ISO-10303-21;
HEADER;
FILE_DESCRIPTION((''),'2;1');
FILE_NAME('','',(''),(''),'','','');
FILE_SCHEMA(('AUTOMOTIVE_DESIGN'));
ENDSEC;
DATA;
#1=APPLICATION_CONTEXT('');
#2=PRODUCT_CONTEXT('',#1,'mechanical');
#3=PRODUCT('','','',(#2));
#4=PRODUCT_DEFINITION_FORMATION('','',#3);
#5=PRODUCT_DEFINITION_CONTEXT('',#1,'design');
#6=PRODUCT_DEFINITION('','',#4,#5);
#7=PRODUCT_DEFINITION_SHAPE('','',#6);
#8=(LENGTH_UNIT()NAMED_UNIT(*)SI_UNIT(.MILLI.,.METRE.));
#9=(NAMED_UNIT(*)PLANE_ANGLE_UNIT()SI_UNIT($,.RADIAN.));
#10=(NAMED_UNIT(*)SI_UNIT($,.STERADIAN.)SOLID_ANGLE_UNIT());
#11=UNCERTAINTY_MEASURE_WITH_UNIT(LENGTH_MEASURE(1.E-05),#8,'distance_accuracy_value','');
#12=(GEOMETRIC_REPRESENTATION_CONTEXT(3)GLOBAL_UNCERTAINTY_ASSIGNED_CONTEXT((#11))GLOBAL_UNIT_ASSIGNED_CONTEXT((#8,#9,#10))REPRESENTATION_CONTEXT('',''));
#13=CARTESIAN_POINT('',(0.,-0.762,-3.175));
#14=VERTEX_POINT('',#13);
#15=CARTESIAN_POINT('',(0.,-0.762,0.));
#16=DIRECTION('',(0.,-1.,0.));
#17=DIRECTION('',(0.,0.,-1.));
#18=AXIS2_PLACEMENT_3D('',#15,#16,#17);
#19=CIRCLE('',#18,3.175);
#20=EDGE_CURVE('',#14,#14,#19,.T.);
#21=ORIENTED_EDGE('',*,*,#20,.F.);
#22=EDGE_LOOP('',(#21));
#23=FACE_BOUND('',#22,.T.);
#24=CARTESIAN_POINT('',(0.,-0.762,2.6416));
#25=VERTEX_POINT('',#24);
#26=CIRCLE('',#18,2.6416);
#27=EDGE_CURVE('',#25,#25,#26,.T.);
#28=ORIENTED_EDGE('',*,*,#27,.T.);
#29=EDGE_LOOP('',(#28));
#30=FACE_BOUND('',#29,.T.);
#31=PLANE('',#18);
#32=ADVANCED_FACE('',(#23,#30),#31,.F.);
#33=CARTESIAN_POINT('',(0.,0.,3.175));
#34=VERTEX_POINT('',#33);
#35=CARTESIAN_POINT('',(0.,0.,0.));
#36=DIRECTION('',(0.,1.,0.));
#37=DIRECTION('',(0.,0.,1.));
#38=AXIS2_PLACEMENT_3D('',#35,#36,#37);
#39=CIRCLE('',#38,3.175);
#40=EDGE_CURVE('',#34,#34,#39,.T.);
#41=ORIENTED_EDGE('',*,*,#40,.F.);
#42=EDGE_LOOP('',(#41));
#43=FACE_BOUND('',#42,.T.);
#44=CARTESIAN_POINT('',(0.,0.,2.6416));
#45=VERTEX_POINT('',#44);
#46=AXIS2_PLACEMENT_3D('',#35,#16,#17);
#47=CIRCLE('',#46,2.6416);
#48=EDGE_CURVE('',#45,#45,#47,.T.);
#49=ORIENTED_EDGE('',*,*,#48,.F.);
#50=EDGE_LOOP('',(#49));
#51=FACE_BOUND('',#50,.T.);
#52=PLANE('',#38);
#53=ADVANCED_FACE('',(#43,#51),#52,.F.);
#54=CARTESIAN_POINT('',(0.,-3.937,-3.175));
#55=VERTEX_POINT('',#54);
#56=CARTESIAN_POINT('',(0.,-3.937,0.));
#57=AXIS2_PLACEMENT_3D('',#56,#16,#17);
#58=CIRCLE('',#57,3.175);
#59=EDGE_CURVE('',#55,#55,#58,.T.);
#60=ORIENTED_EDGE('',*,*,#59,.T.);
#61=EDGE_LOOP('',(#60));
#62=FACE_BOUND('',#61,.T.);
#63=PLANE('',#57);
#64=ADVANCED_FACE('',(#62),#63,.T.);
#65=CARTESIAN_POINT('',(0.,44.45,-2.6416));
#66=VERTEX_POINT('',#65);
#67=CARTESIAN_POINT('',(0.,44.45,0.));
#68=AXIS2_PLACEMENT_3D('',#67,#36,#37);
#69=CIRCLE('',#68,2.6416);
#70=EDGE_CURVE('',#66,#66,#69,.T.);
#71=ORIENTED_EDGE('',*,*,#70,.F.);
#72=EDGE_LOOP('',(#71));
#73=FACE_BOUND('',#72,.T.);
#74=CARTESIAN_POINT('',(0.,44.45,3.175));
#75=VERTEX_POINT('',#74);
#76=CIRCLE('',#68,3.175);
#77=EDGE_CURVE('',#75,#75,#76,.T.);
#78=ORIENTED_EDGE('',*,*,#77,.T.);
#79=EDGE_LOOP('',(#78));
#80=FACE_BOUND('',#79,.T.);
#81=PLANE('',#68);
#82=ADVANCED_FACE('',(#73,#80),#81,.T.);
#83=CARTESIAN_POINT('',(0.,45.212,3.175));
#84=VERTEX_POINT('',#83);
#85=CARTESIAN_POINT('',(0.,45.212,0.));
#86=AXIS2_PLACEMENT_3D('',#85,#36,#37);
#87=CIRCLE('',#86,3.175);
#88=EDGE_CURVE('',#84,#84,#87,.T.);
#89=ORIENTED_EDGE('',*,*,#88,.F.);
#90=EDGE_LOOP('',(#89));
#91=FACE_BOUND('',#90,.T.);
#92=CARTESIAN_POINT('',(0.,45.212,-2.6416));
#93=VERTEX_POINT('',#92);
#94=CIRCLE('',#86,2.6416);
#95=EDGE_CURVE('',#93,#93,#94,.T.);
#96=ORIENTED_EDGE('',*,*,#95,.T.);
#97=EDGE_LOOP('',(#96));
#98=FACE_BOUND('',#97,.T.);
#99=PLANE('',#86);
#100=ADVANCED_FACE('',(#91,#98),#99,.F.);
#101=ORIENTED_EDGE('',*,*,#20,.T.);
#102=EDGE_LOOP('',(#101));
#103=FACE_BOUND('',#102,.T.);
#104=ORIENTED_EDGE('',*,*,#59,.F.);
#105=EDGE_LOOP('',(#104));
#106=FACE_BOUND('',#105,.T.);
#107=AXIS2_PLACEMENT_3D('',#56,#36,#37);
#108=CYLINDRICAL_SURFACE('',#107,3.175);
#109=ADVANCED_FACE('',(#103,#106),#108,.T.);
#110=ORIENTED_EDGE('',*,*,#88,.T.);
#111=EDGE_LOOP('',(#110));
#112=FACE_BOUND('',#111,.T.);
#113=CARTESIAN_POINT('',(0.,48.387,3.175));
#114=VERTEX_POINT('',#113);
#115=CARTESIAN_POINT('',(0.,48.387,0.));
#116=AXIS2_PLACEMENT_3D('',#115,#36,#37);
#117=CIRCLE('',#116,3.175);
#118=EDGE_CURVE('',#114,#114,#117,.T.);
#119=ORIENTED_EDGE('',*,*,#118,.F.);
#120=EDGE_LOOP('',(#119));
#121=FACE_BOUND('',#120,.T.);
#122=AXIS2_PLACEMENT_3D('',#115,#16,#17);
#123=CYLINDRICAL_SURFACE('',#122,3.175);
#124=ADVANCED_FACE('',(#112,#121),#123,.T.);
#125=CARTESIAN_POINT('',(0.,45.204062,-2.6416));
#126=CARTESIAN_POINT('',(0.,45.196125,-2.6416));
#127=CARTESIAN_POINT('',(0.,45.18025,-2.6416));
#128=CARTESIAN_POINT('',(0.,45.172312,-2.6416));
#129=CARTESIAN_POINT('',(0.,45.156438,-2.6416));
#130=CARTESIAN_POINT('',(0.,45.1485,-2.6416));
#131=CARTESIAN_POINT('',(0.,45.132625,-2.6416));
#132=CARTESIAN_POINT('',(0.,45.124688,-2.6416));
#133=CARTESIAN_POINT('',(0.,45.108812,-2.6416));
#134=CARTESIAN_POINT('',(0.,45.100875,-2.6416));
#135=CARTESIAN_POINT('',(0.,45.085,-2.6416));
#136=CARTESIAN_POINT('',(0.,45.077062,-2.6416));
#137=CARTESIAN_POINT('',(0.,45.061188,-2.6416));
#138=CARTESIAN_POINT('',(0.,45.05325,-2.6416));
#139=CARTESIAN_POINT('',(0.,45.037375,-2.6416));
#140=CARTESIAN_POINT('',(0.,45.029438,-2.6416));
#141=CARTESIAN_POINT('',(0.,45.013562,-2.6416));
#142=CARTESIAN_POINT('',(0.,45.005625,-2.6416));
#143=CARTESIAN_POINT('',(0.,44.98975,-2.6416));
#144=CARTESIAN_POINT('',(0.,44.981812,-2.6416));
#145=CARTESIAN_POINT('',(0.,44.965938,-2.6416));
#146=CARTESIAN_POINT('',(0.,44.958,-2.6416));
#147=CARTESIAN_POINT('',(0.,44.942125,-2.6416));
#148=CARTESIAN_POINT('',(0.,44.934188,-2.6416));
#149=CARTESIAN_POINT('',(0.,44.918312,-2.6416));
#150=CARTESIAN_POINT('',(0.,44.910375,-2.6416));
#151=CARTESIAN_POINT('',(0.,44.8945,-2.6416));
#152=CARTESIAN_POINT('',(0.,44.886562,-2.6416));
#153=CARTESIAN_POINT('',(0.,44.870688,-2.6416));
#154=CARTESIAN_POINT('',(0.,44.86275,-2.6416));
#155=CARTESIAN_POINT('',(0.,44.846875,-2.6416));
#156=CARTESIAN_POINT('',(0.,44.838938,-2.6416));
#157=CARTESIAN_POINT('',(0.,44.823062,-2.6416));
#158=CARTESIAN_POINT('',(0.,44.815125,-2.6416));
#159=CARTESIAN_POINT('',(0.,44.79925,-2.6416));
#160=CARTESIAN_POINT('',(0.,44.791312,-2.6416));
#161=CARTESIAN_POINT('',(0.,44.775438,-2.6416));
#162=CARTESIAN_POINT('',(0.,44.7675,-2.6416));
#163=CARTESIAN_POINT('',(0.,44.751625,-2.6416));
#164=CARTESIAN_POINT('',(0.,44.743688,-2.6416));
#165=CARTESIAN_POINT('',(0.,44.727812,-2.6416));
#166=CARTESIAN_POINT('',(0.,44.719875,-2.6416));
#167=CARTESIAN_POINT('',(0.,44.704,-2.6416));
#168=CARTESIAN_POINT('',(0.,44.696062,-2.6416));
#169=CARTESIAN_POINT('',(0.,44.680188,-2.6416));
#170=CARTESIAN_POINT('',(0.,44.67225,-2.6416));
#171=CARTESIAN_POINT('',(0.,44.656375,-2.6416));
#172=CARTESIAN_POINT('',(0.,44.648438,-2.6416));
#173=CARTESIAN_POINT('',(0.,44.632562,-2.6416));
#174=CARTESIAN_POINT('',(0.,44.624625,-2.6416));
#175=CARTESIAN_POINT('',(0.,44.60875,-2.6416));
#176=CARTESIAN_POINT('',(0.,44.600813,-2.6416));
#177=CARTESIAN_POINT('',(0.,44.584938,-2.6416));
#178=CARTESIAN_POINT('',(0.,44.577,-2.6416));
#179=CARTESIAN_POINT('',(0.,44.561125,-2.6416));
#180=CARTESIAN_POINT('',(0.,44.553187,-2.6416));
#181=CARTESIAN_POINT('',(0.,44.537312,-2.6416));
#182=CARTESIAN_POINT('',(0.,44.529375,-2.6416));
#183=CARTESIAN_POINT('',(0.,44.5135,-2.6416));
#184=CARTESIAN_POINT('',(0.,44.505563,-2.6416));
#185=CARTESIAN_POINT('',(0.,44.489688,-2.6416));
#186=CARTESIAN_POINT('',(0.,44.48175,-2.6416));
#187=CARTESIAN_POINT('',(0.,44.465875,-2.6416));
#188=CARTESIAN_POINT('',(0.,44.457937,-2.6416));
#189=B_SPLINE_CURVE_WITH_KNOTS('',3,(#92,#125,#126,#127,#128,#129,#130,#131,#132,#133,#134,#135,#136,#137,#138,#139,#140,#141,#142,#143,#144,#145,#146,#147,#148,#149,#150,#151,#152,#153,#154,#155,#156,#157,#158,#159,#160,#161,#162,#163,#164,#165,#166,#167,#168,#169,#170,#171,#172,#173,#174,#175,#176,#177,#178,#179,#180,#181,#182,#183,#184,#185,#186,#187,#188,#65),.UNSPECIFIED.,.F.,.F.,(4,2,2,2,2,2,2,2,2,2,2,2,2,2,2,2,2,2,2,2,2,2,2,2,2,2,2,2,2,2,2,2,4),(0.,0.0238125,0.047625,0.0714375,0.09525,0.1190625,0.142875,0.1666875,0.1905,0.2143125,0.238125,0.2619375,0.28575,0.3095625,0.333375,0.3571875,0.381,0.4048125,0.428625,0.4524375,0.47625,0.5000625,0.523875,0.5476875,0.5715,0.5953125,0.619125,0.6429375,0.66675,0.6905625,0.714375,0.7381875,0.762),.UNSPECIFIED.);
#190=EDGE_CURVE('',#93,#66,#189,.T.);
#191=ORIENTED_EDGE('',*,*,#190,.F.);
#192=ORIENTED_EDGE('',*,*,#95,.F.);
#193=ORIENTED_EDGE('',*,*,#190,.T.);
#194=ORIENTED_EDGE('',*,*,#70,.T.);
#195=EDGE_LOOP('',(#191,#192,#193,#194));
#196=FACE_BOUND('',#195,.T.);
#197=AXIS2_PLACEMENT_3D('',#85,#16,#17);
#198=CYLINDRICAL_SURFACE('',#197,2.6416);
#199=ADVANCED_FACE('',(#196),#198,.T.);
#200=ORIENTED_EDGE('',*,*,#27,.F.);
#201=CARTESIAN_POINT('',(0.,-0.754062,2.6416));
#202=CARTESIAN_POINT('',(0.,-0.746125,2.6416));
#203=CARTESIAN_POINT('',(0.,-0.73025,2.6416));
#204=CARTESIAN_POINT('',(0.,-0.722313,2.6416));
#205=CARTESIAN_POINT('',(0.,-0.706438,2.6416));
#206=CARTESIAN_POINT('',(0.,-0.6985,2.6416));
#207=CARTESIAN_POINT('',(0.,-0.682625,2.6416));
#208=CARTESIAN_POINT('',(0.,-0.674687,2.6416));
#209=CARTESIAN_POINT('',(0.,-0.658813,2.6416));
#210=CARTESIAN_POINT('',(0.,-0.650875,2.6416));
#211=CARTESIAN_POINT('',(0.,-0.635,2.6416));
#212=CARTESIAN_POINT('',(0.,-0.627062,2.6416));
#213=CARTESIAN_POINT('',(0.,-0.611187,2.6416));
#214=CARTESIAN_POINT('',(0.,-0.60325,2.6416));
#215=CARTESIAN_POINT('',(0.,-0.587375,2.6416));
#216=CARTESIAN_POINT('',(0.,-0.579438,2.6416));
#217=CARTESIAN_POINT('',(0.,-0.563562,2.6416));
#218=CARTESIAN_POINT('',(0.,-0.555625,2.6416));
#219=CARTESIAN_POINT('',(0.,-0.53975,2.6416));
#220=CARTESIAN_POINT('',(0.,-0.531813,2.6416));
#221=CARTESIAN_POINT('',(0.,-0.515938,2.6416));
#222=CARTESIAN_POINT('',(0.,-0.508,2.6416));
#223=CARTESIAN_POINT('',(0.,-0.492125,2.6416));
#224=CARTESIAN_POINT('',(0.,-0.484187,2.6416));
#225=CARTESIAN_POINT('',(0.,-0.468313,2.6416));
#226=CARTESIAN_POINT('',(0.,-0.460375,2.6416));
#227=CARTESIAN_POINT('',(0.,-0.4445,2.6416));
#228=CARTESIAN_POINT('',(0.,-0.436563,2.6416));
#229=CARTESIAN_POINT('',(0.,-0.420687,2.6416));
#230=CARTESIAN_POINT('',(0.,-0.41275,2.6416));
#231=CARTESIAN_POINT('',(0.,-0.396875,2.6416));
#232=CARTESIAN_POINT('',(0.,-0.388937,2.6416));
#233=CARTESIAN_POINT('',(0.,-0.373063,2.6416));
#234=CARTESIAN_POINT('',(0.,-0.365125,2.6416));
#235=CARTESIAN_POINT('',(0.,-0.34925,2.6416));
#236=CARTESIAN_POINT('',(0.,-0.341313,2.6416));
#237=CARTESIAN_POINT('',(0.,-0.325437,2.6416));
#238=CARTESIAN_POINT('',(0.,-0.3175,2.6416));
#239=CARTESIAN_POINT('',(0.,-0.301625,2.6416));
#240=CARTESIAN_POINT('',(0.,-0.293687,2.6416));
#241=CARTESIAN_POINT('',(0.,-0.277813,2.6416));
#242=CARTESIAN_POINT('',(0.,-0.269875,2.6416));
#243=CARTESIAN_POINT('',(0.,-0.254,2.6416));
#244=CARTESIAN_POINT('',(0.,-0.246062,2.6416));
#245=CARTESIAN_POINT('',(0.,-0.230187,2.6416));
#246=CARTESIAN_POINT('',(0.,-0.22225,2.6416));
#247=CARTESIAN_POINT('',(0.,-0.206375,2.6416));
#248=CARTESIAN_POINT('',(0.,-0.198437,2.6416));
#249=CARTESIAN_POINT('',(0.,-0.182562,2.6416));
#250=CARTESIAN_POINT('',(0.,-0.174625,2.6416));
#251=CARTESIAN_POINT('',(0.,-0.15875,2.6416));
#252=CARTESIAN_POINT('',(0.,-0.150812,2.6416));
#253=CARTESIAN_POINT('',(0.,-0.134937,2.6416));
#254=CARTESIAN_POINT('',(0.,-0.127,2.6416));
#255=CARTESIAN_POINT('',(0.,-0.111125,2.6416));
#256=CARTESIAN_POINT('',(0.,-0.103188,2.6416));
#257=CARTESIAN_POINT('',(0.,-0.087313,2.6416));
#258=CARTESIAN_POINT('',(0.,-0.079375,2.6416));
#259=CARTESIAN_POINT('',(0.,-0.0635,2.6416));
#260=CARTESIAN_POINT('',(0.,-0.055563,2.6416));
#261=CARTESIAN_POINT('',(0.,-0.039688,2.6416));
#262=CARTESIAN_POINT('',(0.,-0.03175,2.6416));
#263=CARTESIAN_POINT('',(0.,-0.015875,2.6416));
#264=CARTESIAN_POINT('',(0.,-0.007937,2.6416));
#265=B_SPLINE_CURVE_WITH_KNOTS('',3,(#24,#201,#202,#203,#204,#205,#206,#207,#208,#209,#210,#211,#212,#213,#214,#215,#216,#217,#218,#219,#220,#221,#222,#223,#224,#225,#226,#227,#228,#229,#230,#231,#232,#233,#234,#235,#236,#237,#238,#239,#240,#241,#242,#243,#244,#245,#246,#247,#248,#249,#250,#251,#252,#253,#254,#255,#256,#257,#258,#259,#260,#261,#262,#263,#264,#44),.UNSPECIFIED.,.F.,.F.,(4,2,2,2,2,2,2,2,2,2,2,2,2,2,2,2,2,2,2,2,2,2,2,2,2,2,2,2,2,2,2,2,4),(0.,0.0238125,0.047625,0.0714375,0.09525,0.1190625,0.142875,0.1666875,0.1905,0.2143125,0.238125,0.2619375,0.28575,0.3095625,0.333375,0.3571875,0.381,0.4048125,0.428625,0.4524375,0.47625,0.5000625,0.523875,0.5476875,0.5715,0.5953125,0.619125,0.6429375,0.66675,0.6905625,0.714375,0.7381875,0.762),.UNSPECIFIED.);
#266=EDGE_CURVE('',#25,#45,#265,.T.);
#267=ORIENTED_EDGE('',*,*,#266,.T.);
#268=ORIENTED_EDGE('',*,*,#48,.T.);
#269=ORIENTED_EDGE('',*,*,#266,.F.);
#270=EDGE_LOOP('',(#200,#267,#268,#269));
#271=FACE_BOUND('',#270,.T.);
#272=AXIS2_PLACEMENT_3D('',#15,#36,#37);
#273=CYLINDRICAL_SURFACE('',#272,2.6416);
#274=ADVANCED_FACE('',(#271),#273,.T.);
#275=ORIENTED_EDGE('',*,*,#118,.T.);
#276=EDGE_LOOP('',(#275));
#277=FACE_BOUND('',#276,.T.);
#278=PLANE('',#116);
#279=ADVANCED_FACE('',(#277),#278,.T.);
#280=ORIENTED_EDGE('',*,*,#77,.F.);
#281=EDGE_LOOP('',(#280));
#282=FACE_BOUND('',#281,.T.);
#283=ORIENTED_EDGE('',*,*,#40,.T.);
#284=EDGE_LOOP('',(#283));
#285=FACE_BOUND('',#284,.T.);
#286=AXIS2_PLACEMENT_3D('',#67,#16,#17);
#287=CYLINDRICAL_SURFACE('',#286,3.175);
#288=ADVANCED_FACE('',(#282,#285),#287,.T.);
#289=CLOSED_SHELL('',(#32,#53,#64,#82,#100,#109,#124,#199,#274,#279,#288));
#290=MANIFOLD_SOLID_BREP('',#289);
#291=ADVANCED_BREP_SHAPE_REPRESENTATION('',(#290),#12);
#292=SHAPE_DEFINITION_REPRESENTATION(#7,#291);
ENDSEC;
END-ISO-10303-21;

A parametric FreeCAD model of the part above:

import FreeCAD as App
import Part
import Sketcher

V = App.Vector
Q = App.Units.Quantity

doc = App.newDocument("Part")
body = doc.addObject("PartDesign::Body", "Body")

sketch1 = doc.addObject("Sketcher::SketchObject", "Sketch")
body.addObject(sketch1)
sketch1.AttachmentSupport = (doc.XZ_Plane, [""])
sketch1.MapMode = "FlatFace"
sketch1.addGeometry(Part.Circle(V(0, 0, 0), V(0, 0, 1), 3.175), False)
sketch1.addConstraint([
    Sketcher.Constraint("Coincident", 0, 3, -1, 1),
    Sketcher.Constraint("Diameter", 0, Q("0.25 in")),
])
pad1 = doc.addObject("PartDesign::Pad", "Pad")
body.addObject(pad1)
pad1.Profile = sketch1
pad1.Length = Q("1.75 in")
pad1.Reversed = True

sketch2 = doc.addObject("Sketcher::SketchObject", "Sketch001")
body.addObject(sketch2)
sketch2.AttachmentSupport = (doc.XZ_Plane, [""])
sketch2.MapMode = "FlatFace"
sketch2.AttachmentOffset = App.Placement(V(0, 0, -1.75 * 25.4), App.Rotation())
sketch2.addGeometry(Part.Circle(V(0, 0, 0), V(0, 0, 1), 2.6416), False)
sketch2.addConstraint([
    Sketcher.Constraint("Coincident", 0, 3, -1, 1),
    Sketcher.Constraint("Diameter", 0, Q("0.208 in")),
])
pad2 = doc.addObject("PartDesign::Pad", "Pad001")
body.addObject(pad2)
pad2.Profile = sketch2
pad2.Length = Q("0.03 in")
pad2.Reversed = True

sketch3 = doc.addObject("Sketcher::SketchObject", "Sketch002")
body.addObject(sketch3)
sketch3.AttachmentSupport = (doc.XZ_Plane, [""])
sketch3.MapMode = "FlatFace"
sketch3.AttachmentOffset = App.Placement(V(0, 0, -1.78 * 25.4), App.Rotation())
sketch3.addGeometry(Part.Circle(V(0, 0, 0), V(0, 0, 1), 3.175), False)
sketch3.addConstraint([
    Sketcher.Constraint("Coincident", 0, 3, -1, 1),
    Sketcher.Constraint("Diameter", 0, Q("0.25 in")),
])
pad3 = doc.addObject("PartDesign::Pad", "Pad002")
body.addObject(pad3)
pad3.Profile = sketch3
pad3.Length = Q("0.125 in")
pad3.Reversed = True

sketch4 = doc.addObject("Sketcher::SketchObject", "Sketch003")
body.addObject(sketch4)
sketch4.AttachmentSupport = (doc.XZ_Plane, [""])
sketch4.MapMode = "FlatFace"
sketch4.AttachmentOffset = App.Placement(V(0, 0, 0.03 * 25.4), App.Rotation())
sketch4.addGeometry(Part.Circle(V(0, 0, 0), V(0, 0, 1), 2.6416), False)
sketch4.addConstraint([
    Sketcher.Constraint("Coincident", 0, 3, -1, 1),
    Sketcher.Constraint("Diameter", 0, Q("0.208 in")),
])
pad4 = doc.addObject("PartDesign::Pad", "Pad003")
body.addObject(pad4)
pad4.Profile = sketch4
pad4.Length = Q("0.03 in")
pad4.Reversed = True

sketch5 = doc.addObject("Sketcher::SketchObject", "Sketch004")
body.addObject(sketch5)
sketch5.AttachmentSupport = (doc.XZ_Plane, [""])
sketch5.MapMode = "FlatFace"
sketch5.AttachmentOffset = App.Placement(V(0, 0, 0.155 * 25.4), App.Rotation())
sketch5.addGeometry(Part.Circle(V(0, 0, 0), V(0, 0, 1), 3.175), False)
sketch5.addConstraint([
    Sketcher.Constraint("Coincident", 0, 3, -1, 1),
    Sketcher.Constraint("Diameter", 0, Q("0.25 in")),
])
pad5 = doc.addObject("PartDesign::Pad", "Pad004")
body.addObject(pad5)
pad5.Profile = sketch5
pad5.Length = Q("0.125 in")
pad5.Reversed = True

doc.recompute()
